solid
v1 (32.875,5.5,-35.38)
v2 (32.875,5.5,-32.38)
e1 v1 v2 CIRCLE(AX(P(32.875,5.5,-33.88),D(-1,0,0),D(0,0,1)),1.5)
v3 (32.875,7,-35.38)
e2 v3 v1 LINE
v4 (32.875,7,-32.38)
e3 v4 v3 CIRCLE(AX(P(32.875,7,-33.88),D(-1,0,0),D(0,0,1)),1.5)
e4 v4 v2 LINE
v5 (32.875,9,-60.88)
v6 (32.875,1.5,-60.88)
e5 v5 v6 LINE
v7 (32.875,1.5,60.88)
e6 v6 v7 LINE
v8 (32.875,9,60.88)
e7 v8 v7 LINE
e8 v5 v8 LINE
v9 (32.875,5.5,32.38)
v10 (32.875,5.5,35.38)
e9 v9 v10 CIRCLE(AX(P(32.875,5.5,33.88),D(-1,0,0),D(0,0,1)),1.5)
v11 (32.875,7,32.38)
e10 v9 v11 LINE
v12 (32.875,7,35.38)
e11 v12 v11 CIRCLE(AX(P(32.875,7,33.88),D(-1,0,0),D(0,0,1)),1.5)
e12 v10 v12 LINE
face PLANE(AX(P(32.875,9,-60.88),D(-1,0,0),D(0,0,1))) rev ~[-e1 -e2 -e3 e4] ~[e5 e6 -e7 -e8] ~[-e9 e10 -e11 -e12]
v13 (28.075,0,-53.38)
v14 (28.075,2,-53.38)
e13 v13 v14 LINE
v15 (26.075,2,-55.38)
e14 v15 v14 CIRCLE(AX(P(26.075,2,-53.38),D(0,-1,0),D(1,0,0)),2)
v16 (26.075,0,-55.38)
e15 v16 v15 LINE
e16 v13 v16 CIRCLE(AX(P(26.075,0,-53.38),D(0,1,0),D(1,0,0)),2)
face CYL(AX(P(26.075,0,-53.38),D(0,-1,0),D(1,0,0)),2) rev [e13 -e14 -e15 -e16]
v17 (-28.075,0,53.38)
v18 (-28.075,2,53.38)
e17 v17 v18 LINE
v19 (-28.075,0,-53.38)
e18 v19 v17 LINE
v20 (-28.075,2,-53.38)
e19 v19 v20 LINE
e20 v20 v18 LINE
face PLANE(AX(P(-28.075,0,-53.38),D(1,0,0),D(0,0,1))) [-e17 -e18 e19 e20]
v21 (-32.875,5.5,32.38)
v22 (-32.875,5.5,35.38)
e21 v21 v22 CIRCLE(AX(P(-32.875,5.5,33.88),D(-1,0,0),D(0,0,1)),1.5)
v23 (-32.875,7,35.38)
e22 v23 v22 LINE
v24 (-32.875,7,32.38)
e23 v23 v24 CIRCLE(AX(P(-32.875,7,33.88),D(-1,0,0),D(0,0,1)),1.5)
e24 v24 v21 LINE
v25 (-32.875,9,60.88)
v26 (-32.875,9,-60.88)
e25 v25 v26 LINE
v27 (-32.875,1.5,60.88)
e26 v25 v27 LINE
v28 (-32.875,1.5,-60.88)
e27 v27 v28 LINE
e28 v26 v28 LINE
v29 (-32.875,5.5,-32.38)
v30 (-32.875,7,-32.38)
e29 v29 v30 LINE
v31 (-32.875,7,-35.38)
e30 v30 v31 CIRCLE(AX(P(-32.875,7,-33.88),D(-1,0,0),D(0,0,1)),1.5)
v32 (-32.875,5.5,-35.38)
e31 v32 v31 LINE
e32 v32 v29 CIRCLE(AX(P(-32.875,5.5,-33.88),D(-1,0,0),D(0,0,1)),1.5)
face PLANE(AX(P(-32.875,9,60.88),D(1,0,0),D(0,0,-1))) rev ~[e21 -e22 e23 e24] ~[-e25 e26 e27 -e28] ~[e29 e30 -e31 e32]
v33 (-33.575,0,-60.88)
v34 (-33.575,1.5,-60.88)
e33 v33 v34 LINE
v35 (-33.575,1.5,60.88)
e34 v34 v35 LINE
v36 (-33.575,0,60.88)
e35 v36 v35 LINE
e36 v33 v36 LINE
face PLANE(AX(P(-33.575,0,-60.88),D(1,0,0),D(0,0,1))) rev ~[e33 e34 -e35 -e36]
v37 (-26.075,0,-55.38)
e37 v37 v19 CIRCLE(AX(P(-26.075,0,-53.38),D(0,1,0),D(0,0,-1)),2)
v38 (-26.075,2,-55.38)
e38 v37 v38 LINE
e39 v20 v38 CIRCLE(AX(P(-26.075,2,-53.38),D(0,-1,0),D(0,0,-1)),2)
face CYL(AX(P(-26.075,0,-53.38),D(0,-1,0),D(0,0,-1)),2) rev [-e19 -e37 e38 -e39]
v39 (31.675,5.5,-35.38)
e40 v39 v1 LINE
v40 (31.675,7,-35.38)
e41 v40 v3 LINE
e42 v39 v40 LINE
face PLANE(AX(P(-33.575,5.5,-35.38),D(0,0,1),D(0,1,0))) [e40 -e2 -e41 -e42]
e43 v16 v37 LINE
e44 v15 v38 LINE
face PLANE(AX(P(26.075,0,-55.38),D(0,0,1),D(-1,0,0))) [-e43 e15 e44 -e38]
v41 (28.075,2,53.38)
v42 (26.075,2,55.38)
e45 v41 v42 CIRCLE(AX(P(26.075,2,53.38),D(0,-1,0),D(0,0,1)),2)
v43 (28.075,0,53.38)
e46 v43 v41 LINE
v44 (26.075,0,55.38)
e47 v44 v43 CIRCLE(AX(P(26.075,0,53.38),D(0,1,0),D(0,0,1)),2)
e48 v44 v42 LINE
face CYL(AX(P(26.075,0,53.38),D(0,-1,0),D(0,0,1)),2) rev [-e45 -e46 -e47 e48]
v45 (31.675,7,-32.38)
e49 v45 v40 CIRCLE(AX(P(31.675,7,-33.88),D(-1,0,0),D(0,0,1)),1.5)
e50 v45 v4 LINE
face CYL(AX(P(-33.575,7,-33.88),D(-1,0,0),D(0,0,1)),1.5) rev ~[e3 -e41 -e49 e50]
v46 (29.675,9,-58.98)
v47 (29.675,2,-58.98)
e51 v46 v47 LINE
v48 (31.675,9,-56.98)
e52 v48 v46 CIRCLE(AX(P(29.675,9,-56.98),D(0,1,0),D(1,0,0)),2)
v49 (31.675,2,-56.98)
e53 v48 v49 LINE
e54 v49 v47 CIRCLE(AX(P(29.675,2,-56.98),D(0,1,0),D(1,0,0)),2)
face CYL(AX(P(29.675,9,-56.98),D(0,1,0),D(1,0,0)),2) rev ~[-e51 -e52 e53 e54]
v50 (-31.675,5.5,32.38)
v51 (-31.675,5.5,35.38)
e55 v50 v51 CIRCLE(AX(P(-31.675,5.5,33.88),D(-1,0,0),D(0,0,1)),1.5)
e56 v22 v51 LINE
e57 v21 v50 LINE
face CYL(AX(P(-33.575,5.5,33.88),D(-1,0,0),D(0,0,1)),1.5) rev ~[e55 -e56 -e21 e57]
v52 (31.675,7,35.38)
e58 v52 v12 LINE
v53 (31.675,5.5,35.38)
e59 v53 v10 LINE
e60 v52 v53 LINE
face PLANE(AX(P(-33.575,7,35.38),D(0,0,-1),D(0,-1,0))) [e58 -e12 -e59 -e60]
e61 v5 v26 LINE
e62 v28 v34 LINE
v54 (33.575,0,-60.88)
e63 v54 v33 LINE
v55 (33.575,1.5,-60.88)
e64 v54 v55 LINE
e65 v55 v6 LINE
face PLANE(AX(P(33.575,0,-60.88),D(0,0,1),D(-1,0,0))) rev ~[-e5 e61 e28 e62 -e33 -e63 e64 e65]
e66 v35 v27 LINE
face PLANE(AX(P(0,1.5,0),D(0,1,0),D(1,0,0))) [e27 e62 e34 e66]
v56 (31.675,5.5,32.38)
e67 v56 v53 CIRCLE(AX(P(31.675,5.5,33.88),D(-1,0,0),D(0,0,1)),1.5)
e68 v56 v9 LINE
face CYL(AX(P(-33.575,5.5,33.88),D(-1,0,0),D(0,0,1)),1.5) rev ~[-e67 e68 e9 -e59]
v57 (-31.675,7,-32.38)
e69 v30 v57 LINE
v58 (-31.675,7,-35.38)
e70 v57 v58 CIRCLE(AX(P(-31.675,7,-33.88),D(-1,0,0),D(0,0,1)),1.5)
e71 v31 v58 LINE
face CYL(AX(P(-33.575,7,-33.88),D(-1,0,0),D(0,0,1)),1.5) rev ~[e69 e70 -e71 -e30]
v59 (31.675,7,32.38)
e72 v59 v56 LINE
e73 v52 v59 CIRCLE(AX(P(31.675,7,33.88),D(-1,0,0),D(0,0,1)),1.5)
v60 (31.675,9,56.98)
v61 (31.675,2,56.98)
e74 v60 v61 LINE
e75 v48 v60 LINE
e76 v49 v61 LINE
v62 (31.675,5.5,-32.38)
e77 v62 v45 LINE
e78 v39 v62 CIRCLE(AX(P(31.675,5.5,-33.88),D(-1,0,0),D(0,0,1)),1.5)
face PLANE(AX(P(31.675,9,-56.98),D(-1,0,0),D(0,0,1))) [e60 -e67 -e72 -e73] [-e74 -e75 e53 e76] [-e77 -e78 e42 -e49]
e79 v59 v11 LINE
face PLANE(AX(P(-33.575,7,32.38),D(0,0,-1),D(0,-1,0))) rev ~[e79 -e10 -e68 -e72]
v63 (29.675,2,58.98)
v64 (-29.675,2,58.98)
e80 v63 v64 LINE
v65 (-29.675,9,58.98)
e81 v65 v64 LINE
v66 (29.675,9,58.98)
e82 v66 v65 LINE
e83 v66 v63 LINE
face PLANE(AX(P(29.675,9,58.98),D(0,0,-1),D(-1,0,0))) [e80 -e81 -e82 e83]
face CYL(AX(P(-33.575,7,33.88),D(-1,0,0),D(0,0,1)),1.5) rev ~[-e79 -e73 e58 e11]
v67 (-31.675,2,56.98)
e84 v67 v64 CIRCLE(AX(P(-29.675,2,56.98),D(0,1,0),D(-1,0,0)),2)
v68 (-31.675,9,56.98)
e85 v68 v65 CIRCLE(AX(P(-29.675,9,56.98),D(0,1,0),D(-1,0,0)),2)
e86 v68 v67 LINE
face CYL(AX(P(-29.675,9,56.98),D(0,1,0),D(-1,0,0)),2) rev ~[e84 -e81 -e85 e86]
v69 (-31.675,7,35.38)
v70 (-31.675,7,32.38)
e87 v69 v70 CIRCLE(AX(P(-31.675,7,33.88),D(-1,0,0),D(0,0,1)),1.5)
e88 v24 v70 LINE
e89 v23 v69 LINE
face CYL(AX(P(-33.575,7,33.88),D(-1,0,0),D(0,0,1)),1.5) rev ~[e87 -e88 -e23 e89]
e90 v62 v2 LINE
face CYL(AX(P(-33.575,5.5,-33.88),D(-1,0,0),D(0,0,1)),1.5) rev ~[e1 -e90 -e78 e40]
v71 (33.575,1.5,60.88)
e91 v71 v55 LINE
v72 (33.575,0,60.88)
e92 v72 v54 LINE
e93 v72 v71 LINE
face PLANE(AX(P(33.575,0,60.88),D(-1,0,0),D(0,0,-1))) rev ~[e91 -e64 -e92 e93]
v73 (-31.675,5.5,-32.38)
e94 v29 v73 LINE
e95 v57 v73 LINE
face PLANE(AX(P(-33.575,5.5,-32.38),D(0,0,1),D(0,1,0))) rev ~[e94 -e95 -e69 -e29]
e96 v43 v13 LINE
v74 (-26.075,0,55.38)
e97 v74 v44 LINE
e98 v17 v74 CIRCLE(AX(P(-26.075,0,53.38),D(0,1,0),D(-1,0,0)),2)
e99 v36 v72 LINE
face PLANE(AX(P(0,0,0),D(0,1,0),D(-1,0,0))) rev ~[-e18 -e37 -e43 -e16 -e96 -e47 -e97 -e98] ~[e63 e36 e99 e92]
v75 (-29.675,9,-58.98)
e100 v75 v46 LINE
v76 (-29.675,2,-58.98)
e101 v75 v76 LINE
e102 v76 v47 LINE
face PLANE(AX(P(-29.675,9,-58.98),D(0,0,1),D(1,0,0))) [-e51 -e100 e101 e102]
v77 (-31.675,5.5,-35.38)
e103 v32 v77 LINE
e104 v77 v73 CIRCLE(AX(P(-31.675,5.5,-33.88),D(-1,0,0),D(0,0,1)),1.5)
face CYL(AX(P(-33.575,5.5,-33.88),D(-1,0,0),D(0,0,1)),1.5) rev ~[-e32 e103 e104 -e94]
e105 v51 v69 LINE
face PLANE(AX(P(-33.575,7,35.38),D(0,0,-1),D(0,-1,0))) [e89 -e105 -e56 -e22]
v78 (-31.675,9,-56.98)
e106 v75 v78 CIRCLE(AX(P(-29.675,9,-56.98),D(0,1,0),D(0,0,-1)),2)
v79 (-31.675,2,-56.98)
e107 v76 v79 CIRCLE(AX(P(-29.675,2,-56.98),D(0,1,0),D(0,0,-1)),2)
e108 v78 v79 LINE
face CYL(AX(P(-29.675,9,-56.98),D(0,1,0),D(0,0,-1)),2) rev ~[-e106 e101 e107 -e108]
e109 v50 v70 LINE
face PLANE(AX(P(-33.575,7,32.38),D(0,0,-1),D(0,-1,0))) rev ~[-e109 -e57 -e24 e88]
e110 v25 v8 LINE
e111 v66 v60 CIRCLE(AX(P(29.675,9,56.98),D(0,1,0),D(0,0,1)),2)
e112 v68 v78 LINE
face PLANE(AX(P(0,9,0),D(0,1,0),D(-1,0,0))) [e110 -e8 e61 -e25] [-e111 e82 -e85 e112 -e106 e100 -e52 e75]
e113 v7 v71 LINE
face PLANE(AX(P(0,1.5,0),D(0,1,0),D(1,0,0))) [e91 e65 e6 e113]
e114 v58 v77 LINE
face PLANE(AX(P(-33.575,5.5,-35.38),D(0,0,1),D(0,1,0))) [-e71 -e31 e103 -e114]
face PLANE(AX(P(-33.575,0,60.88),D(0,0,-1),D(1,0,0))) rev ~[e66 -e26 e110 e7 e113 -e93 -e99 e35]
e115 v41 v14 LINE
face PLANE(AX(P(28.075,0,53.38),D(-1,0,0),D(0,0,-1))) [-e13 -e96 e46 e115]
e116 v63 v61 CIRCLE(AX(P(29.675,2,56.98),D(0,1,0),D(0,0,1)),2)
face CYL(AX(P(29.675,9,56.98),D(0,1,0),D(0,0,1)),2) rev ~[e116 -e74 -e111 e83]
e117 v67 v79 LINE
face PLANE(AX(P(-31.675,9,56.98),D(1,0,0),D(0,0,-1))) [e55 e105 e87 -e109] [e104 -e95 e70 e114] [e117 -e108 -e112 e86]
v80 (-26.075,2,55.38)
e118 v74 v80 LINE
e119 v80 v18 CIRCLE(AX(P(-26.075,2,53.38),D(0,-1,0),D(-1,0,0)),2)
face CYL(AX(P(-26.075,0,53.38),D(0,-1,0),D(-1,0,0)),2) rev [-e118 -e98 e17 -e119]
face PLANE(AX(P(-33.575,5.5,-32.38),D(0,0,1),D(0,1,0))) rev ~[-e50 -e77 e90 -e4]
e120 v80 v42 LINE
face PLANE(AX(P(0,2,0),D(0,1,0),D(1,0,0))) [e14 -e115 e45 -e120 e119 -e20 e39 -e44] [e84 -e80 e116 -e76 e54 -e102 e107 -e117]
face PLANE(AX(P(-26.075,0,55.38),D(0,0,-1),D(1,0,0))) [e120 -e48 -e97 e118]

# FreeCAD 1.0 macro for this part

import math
import FreeCAD as App
import Part
import Sketcher
from FreeCAD import Vector
Q = App.Units.Quantity


def add_polygon(sketch, points):
    """Adds a closed chain of lines whose ends are joined by coincident constraints."""
    first, n = sketch.GeometryCount, len(points)
    for a, b in zip(points, points[1:] + points[:1]):
        sketch.addGeometry(Part.LineSegment(App.Vector(*a, 0), App.Vector(*b, 0)), False)
    for i in range(n):
        sketch.addConstraint(Sketcher.Constraint("Coincident", first + i, 2, first + (i + 1) % n, 1))

doc = App.newDocument("Part")
body = doc.addObject("PartDesign::Body", "Body")

# Sketch on XZ plane
sketch1 = body.newObject("Sketcher::SketchObject", "Sketch")
sketch1.AttachmentSupport = (doc.getObject("XZ_Plane"), [""])
sketch1.MapMode = "FlatFace"
add_polygon(sketch1, [(-33.6, -60.9), (-33.6, 60.9), (33.6, 60.9), (33.6, -60.9)])  # lines 0-3
sketch1.addGeometry(Part.LineSegment(Vector(26.1, 55.4, 0), Vector(-26.1, 55.4, 0)), False)  # 4
sketch1.addGeometry(Part.ArcOfCircle(Part.Circle(Vector(-26.1, 53.4, 0), Vector(0, 0, 1), 2), math.radians(90), math.radians(180)), False)  # 5
sketch1.addGeometry(Part.LineSegment(Vector(-28.1, 53.4, 0), Vector(-28.1, -53.4, 0)), False)  # 6
sketch1.addGeometry(Part.ArcOfCircle(Part.Circle(Vector(-26.1, -53.4, 0), Vector(0, 0, 1), 2), math.radians(180), math.radians(270)), False)  # 7
sketch1.addGeometry(Part.LineSegment(Vector(-26.1, -55.4, 0), Vector(26.1, -55.4, 0)), False)  # 8
sketch1.addGeometry(Part.ArcOfCircle(Part.Circle(Vector(26.1, -53.4, 0), Vector(0, 0, 1), 2), math.radians(-90), math.radians(0)), False)  # 9
sketch1.addGeometry(Part.LineSegment(Vector(28.1, -53.4, 0), Vector(28.1, 53.4, 0)), False)  # 10
sketch1.addGeometry(Part.ArcOfCircle(Part.Circle(Vector(26.1, 53.4, 0), Vector(0, 0, 1), 2), math.radians(0), math.radians(90)), False)  # 11
sketch1.addConstraint(Sketcher.Constraint("Tangent", 4, 2, 5, 1))
sketch1.addConstraint(Sketcher.Constraint("Tangent", 5, 2, 6, 1))
sketch1.addConstraint(Sketcher.Constraint("Tangent", 6, 2, 7, 1))
sketch1.addConstraint(Sketcher.Constraint("Tangent", 7, 2, 8, 1))
sketch1.addConstraint(Sketcher.Constraint("Tangent", 8, 2, 9, 1))
sketch1.addConstraint(Sketcher.Constraint("Tangent", 9, 2, 10, 1))
sketch1.addConstraint(Sketcher.Constraint("Tangent", 10, 2, 11, 1))
sketch1.addConstraint(Sketcher.Constraint("Tangent", 11, 2, 4, 1))
sketch1.addConstraint(Sketcher.Constraint("Vertical", 0))
sketch1.addConstraint(Sketcher.Constraint("Horizontal", 1))
sketch1.addConstraint(Sketcher.Constraint("Vertical", 2))
sketch1.addConstraint(Sketcher.Constraint("Horizontal", 3))
sketch1.addConstraint(Sketcher.Constraint("Horizontal", 4))
sketch1.addConstraint(Sketcher.Constraint("Vertical", 6))
sketch1.addConstraint(Sketcher.Constraint("Horizontal", 8))
sketch1.addConstraint(Sketcher.Constraint("Vertical", 10))
sketch1.addConstraint(Sketcher.Constraint("Equal", 5, 7))
sketch1.addConstraint(Sketcher.Constraint("Equal", 7, 9))
sketch1.addConstraint(Sketcher.Constraint("Equal", 9, 11))
sketch1.addConstraint(Sketcher.Constraint("Symmetric", 5, 3, 9, 3, -1, 1))
sketch1.addConstraint(Sketcher.Constraint("Symmetric", 0, 2, 2, 2, -1, 1))
sketch1.addConstraint(Sketcher.Constraint("Radius", 5, Q("2 mm")))
sketch1.addConstraint(Sketcher.Constraint("DistanceX", 1, 1, 1, 2, Q("67.15 mm")))
sketch1.addConstraint(Sketcher.Constraint("DistanceX", 4, 2, 4, 1, Q("52.15 mm")))
sketch1.addConstraint(Sketcher.Constraint("DistanceY", 0, 1, 0, 2, Q("121.76 mm")))
sketch1.addConstraint(Sketcher.Constraint("DistanceY", 6, 2, 6, 1, Q("106.76 mm")))
pad1 = body.newObject("PartDesign::Pad", "Pad")
pad1.Profile = sketch1
pad1.Length = 9
pad1.Reversed = True

# Sketch on XZ plane
sketch2 = body.newObject("Sketcher::SketchObject", "Sketch001")
sketch2.AttachmentSupport = (doc.getObject("XZ_Plane"), [""])
sketch2.MapMode = "FlatFace"
sketch2.AttachmentOffset = App.Placement(Vector(0, 0, -9), App.Rotation())
sketch2.addGeometry(Part.LineSegment(Vector(29.7, -59, 0), Vector(-29.7, -59, 0)), False)
sketch2.addGeometry(Part.ArcOfCircle(Part.Circle(Vector(-29.7, -57, 0), Vector(0, 0, 1), 2), math.radians(180), math.radians(270)), False)
sketch2.addGeometry(Part.LineSegment(Vector(-31.7, -57, 0), Vector(-31.7, 57, 0)), False)
sketch2.addGeometry(Part.ArcOfCircle(Part.Circle(Vector(-29.7, 57, 0), Vector(0, 0, 1), 2), math.radians(90), math.radians(180)), False)
sketch2.addGeometry(Part.LineSegment(Vector(-29.7, 59, 0), Vector(29.7, 59, 0)), False)
sketch2.addGeometry(Part.ArcOfCircle(Part.Circle(Vector(29.7, 57, 0), Vector(0, 0, 1), 2), math.radians(0), math.radians(90)), False)
sketch2.addGeometry(Part.LineSegment(Vector(31.7, 57, 0), Vector(31.7, -57, 0)), False)
sketch2.addGeometry(Part.ArcOfCircle(Part.Circle(Vector(29.7, -57, 0), Vector(0, 0, 1), 2), math.radians(-90), math.radians(0)), False)
sketch2.addConstraint(Sketcher.Constraint("Tangent", 0, 2, 1, 2))
sketch2.addConstraint(Sketcher.Constraint("Tangent", 1, 1, 2, 1))
sketch2.addConstraint(Sketcher.Constraint("Tangent", 2, 2, 3, 2))
sketch2.addConstraint(Sketcher.Constraint("Tangent", 3, 1, 4, 1))
sketch2.addConstraint(Sketcher.Constraint("Tangent", 4, 2, 5, 2))
sketch2.addConstraint(Sketcher.Constraint("Tangent", 5, 1, 6, 1))
sketch2.addConstraint(Sketcher.Constraint("Tangent", 6, 2, 7, 2))
sketch2.addConstraint(Sketcher.Constraint("Tangent", 7, 1, 0, 1))
sketch2.addConstraint(Sketcher.Constraint("Horizontal", 0))
sketch2.addConstraint(Sketcher.Constraint("Vertical", 2))
sketch2.addConstraint(Sketcher.Constraint("Horizontal", 4))
sketch2.addConstraint(Sketcher.Constraint("Vertical", 6))
sketch2.addConstraint(Sketcher.Constraint("Equal", 1, 3))
sketch2.addConstraint(Sketcher.Constraint("Equal", 3, 5))
sketch2.addConstraint(Sketcher.Constraint("Equal", 5, 7))
sketch2.addConstraint(Sketcher.Constraint("Symmetric", 1, 3, 5, 3, -1, 1))
sketch2.addConstraint(Sketcher.Constraint("Radius", 1, Q("2 mm")))
sketch2.addConstraint(Sketcher.Constraint("DistanceX", 2, 2, 5, 1, Q("63.35 mm")))
sketch2.addConstraint(Sketcher.Constraint("DistanceY", 2, 1, 2, 2, Q("113.96 mm")))
pocket1 = body.newObject("PartDesign::Pocket", "Pocket")
pocket1.Profile = sketch2
pocket1.Length = 7
pocket1.Reversed = True

# Sketch on YZ plane
sketch3 = body.newObject("Sketcher::SketchObject", "Sketch002")
sketch3.AttachmentSupport = (doc.getObject("YZ_Plane"), [""])
sketch3.MapMode = "FlatFace"
sketch3.AttachmentOffset = App.Placement(Vector(0, 0, -33.575), App.Rotation())
sketch3.addGeometry(Part.ArcOfCircle(Part.Circle(Vector(7, 33.9, 0), Vector(0, 0, 1), 1.5), math.radians(-90), math.radians(90)), False)
sketch3.addGeometry(Part.LineSegment(Vector(7, 32.4, 0), Vector(5.5, 32.4, 0)), False)
sketch3.addGeometry(Part.ArcOfCircle(Part.Circle(Vector(5.5, 33.9, 0), Vector(0, 0, 1), 1.5), math.radians(90), math.radians(270)), False)
sketch3.addGeometry(Part.LineSegment(Vector(5.5, 35.4, 0), Vector(7, 35.4, 0)), False)
sketch3.addGeometry(Part.ArcOfCircle(Part.Circle(Vector(5.5, -33.9, 0), Vector(0, 0, 1), 1.5), math.radians(90), math.radians(270)), False)
sketch3.addGeometry(Part.LineSegment(Vector(5.5, -32.4, 0), Vector(7, -32.4, 0)), False)
sketch3.addGeometry(Part.ArcOfCircle(Part.Circle(Vector(7, -33.9, 0), Vector(0, 0, 1), 1.5), math.radians(-90), math.radians(90)), False)
sketch3.addGeometry(Part.LineSegment(Vector(7, -35.4, 0), Vector(5.5, -35.4, 0)), False)
sketch3.addConstraint(Sketcher.Constraint("Tangent", 0, 1, 1, 1))
sketch3.addConstraint(Sketcher.Constraint("Tangent", 1, 2, 2, 2))
sketch3.addConstraint(Sketcher.Constraint("Tangent", 2, 1, 3, 1))
sketch3.addConstraint(Sketcher.Constraint("Tangent", 3, 2, 0, 2))
sketch3.addConstraint(Sketcher.Constraint("Tangent", 4, 1, 5, 1))
sketch3.addConstraint(Sketcher.Constraint("Tangent", 5, 2, 6, 2))
sketch3.addConstraint(Sketcher.Constraint("Tangent", 6, 1, 7, 1))
sketch3.addConstraint(Sketcher.Constraint("Tangent", 7, 2, 4, 2))
sketch3.addConstraint(Sketcher.Constraint("Horizontal", 1))
sketch3.addConstraint(Sketcher.Constraint("Horizontal", 3))
sketch3.addConstraint(Sketcher.Constraint("Horizontal", 5))
sketch3.addConstraint(Sketcher.Constraint("Horizontal", 7))
sketch3.addConstraint(Sketcher.Constraint("Equal", 2, 4))
sketch3.addConstraint(Sketcher.Constraint("Symmetric", 2, 3, 4, 3, -1))
sketch3.addConstraint(Sketcher.Constraint("Vertical", 0, 3, 6, 3))
sketch3.addConstraint(Sketcher.Constraint("Radius", 0, Q("1.5 mm")))
sketch3.addConstraint(Sketcher.Constraint("DistanceX", 1, 2, 1, 1, Q("1.5 mm")))
sketch3.addConstraint(Sketcher.Constraint("DistanceX", -1, 1, 0, 3, Q("7 mm")))
sketch3.addConstraint(Sketcher.Constraint("DistanceY", -1, 1, 0, 3, Q("33.88 mm")))
pocket2 = body.newObject("PartDesign::Pocket", "Pocket001")
pocket2.Profile = sketch3
pocket2.Length = 70
pocket2.Reversed = True

# Sketch on XZ plane
sketch4 = body.newObject("Sketcher::SketchObject", "Sketch003")
sketch4.AttachmentSupport = (doc.getObject("XZ_Plane"), [""])
sketch4.MapMode = "FlatFace"
sketch4.AttachmentOffset = App.Placement(Vector(0, 0, -9), App.Rotation())
add_polygon(sketch4, [(33.6, 60.9), (33.6, -60.9), (32.9, -60.9), (32.9, 60.9)])  # lines 0-3
add_polygon(sketch4, [(-32.9, 60.9), (-32.9, -60.9), (-33.6, -60.9), (-33.6, 60.9)])  # lines 4-7
sketch4.addConstraint(Sketcher.Constraint("Vertical", 0))
sketch4.addConstraint(Sketcher.Constraint("Horizontal", 1))
sketch4.addConstraint(Sketcher.Constraint("Vertical", 2))
sketch4.addConstraint(Sketcher.Constraint("Horizontal", 3))
sketch4.addConstraint(Sketcher.Constraint("Vertical", 4))
sketch4.addConstraint(Sketcher.Constraint("Horizontal", 5))
sketch4.addConstraint(Sketcher.Constraint("Vertical", 6))
sketch4.addConstraint(Sketcher.Constraint("Horizontal", 7))
sketch4.addConstraint(Sketcher.Constraint("Symmetric", 2, 2, 4, 2, -1, 1))
sketch4.addConstraint(Sketcher.Constraint("Symmetric", 0, 2, 6, 2, -1, 1))
sketch4.addConstraint(Sketcher.Constraint("Horizontal", 1, 2, 4, 2))
sketch4.addConstraint(Sketcher.Constraint("DistanceX", 1, 2, 1, 1, Q("0.7 mm")))
sketch4.addConstraint(Sketcher.Constraint("DistanceY", 0, 2, 0, 1, Q("121.76 mm")))
sketch4.addConstraint(Sketcher.Constraint("DistanceX", 4, 2, 1, 2, Q("65.75 mm")))
pocket3 = body.newObject("PartDesign::Pocket", "Pocket002")
pocket3.Profile = sketch4
pocket3.Length = 7.5
pocket3.Reversed = True

doc.recompute()
